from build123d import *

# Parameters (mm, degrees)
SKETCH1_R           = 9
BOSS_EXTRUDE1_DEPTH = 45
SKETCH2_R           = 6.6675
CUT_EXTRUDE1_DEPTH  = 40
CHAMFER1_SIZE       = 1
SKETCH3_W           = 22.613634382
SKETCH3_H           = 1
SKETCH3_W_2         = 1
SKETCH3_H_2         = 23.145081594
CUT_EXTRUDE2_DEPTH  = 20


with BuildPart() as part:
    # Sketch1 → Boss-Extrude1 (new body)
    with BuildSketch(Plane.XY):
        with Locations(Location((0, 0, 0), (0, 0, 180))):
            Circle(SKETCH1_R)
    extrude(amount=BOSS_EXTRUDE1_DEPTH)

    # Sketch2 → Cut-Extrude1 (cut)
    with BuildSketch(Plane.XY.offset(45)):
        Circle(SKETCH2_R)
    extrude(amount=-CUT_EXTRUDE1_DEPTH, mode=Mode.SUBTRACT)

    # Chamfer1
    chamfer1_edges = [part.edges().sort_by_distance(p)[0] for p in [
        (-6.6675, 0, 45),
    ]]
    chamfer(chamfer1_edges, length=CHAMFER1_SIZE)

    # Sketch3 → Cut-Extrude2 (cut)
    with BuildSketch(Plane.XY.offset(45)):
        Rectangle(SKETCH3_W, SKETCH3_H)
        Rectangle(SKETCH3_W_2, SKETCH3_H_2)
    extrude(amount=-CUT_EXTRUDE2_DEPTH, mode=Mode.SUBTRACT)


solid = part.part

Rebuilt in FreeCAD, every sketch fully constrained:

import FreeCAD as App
import Part
import Sketcher
from FreeCAD import Vector


def edges_at(feature, points):
    """Names of the edges that pass closest to the given points."""
    edges = feature.Shape.Edges
    near = lambda p: min(range(len(edges)), key=lambda i: edges[i].distToShape(Part.Vertex(*p))[0])
    return sorted({f"Edge{near(p) + 1}" for p in points})

doc = App.newDocument("Part")
body = doc.addObject("PartDesign::Body", "Body")

sketch1 = doc.addObject("Sketcher::SketchObject", "Sketch")
body.addObject(sketch1)
sketch1.AttachmentSupport = (doc.XY_Plane, [""])
sketch1.MapMode = "FlatFace"
sketch1.addGeometry(Part.Circle(Vector(0, 0, 0), Vector(0, 0, 1), 9), False)
sketch1.addConstraint([
    Sketcher.Constraint("Coincident", 0, 3, -1, 1),
    Sketcher.Constraint("Diameter", 0, 18.0),
])
pad1 = doc.addObject("PartDesign::Pad", "Pad")
body.addObject(pad1)
pad1.Profile = sketch1
pad1.Length = 45

sketch2 = doc.addObject("Sketcher::SketchObject", "Sketch001")
body.addObject(sketch2)
sketch2.AttachmentSupport = (doc.XY_Plane, [""])
sketch2.MapMode = "FlatFace"
sketch2.AttachmentOffset = App.Placement(Vector(0, 0, 45), App.Rotation())
sketch2.addGeometry(Part.Circle(Vector(0, 0, 0), Vector(0, 0, 1), 7), False)
sketch2.addConstraint([
    Sketcher.Constraint("Coincident", 0, 3, -1, 1),
    Sketcher.Constraint("Diameter", 0, 13.335),
])
pocket1 = doc.addObject("PartDesign::Pocket", "Pocket")
body.addObject(pocket1)
pocket1.Profile = sketch2
pocket1.Length = 40
doc.recompute()

chamfer = doc.addObject("PartDesign::Chamfer", "Chamfer")
body.addObject(chamfer)
chamfer.Base = (pocket1, edges_at(pocket1, [(-6.668, 0, 45)]))
chamfer.Size = 1

sketch3 = doc.addObject("Sketcher::SketchObject", "Sketch002")
body.addObject(sketch3)
sketch3.AttachmentSupport = (doc.XY_Plane, [""])
sketch3.MapMode = "FlatFace"
sketch3.AttachmentOffset = App.Placement(Vector(0, 0, 45), App.Rotation())
sketch3.addGeometry([
    Part.LineSegment(Vector(-11.3, 0.5, 0), Vector(-11.3, -0.5, 0)),
    Part.LineSegment(Vector(-11.3, -0.5, 0), Vector(-0.5, -0.5, 0)),
    Part.LineSegment(Vector(-0.5, -0.5, 0), Vector(-0.5, -11.6, 0)),
    Part.LineSegment(Vector(-0.5, -11.6, 0), Vector(0.5, -11.6, 0)),
    Part.LineSegment(Vector(0.5, -11.6, 0), Vector(0.5, -0.5, 0)),
    Part.LineSegment(Vector(0.5, -0.5, 0), Vector(11.3, -0.5, 0)),
    Part.LineSegment(Vector(11.3, -0.5, 0), Vector(11.3, 0.5, 0)),
    Part.LineSegment(Vector(11.3, 0.5, 0), Vector(0.5, 0.5, 0)),
    Part.LineSegment(Vector(0.5, 0.5, 0), Vector(0.5, 11.6, 0)),
    Part.LineSegment(Vector(0.5, 11.6, 0), Vector(-0.5, 11.6, 0)),
    Part.LineSegment(Vector(-0.5, 11.6, 0), Vector(-0.5, 0.5, 0)),
    Part.LineSegment(Vector(-0.5, 0.5, 0), Vector(-11.3, 0.5, 0)),
], False)
sketch3.addConstraint([
    Sketcher.Constraint("Coincident", 0, 2, 1, 1),
    Sketcher.Constraint("Coincident", 1, 2, 2, 1),
    Sketcher.Constraint("Coincident", 2, 2, 3, 1),
    Sketcher.Constraint("Coincident", 3, 2, 4, 1),
    Sketcher.Constraint("Coincident", 4, 2, 5, 1),
    Sketcher.Constraint("Coincident", 5, 2, 6, 1),
    Sketcher.Constraint("Coincident", 6, 2, 7, 1),
    Sketcher.Constraint("Coincident", 7, 2, 8, 1),
    Sketcher.Constraint("Coincident", 8, 2, 9, 1),
    Sketcher.Constraint("Coincident", 9, 2, 10, 1),
    Sketcher.Constraint("Coincident", 10, 2, 11, 1),
    Sketcher.Constraint("Coincident", 11, 2, 0, 1),
    Sketcher.Constraint("Vertical", 0),
    Sketcher.Constraint("Horizontal", 1),
    Sketcher.Constraint("Vertical", 2),
    Sketcher.Constraint("Horizontal", 3),
    Sketcher.Constraint("Vertical", 4),
    Sketcher.Constraint("Horizontal", 5),
    Sketcher.Constraint("Vertical", 6),
    Sketcher.Constraint("Horizontal", 7),
    Sketcher.Constraint("Vertical", 8),
    Sketcher.Constraint("Horizontal", 9),
    Sketcher.Constraint("Vertical", 10),
    Sketcher.Constraint("Horizontal", 11),
    Sketcher.Constraint("Symmetric", 0, 2, 6, 2, -1, 1),
    Sketcher.Constraint("Symmetric", 2, 2, 8, 2, -1, 1),
    Sketcher.Constraint("Symmetric", 4, 2, 10, 2, -1, 1),
    Sketcher.Constraint("Symmetric", 1, 2, 4, 2, -2),
    Sketcher.Constraint("Equal", 9, 0),
    Sketcher.Constraint("DistanceX", 3, 1, 3, 2, 1.0),
    Sketcher.Constraint("DistanceY", 2, 2, 2, 1, 11.072541),
    Sketcher.Constraint("DistanceX", 1, 1, 1, 2, 10.806817),
])
pocket2 = doc.addObject("PartDesign::Pocket", "Pocket001")
body.addObject(pocket2)
pocket2.Profile = sketch3
pocket2.Length = 20

doc.recompute()
